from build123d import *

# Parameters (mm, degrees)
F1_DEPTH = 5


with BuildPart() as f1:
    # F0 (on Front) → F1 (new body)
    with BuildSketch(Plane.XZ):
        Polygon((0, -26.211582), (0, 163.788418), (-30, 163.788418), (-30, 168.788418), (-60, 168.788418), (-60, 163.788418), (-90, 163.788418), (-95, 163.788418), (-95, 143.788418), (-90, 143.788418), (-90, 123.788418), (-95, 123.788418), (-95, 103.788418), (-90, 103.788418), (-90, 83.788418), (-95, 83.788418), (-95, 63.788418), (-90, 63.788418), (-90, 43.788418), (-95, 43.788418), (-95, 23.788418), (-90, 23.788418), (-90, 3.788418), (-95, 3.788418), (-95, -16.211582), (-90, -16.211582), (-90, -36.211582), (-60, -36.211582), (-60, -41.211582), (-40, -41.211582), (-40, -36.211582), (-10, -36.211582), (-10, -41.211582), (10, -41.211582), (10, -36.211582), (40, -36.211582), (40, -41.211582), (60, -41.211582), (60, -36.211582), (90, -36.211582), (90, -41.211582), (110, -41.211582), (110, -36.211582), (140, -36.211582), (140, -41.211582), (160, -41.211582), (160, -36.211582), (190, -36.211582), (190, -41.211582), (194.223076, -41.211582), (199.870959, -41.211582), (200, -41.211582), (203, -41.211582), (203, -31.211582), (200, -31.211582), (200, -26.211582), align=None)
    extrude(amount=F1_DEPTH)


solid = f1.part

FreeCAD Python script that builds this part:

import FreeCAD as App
import Part
import Sketcher

V = App.Vector
Q = App.Units.Quantity


def add_polygon(sketch, points):
    """Adds a closed chain of lines whose ends are joined by coincident constraints."""
    first, n = sketch.GeometryCount, len(points)
    for a, b in zip(points, points[1:] + points[:1]):
        sketch.addGeometry(Part.LineSegment(App.Vector(*a, 0), App.Vector(*b, 0)), False)
    for i in range(n):
        sketch.addConstraint(Sketcher.Constraint("Coincident", first + i, 2, first + (i + 1) % n, 1))

doc = App.newDocument("Part")
body = doc.addObject("PartDesign::Body", "Body")

# Sketch on XZ plane
sketch1 = body.newObject("Sketcher::SketchObject", "Sketch")
sketch1.AttachmentSupport = (doc.getObject("XZ_Plane"), [""])
sketch1.MapMode = "FlatFace"
add_polygon(sketch1, [(0, -26.2), (0, 163.8), (-30, 163.8), (-30, 168.8), (-60, 168.8), (-60, 163.8), (-95, 163.8), (-95, 143.8), (-90, 143.8), (-90, 123.8), (-95, 123.8), (-95, 103.8), (-90, 103.8), (-90, 83.8), (-95, 83.8), (-95, 63.8), (-90, 63.8), (-90, 43.8), (-95, 43.8), (-95, 23.8), (-90, 23.8), (-90, 3.8), (-95, 3.8), (-95, -16.2), (-90, -16.2), (-90, -36.2), (-60, -36.2), (-60, -41.2), (-40, -41.2), (-40, -36.2), (-10, -36.2), (-10, -41.2), (10, -41.2), (10, -36.2), (40, -36.2), (40, -41.2), (60, -41.2), (60, -36.2), (90, -36.2), (90, -41.2), (110, -41.2), (110, -36.2), (140, -36.2), (140, -41.2), (160, -41.2), (160, -36.2), (190, -36.2), (190, -41.2), (203, -41.2), (203, -31.2), (200, -31.2), (200, -26.2)])  # lines 0-51
sketch1.addConstraint([
    Sketcher.Constraint("Vertical", 0),
    Sketcher.Constraint("Horizontal", 1),
    Sketcher.Constraint("Vertical", 2),
    Sketcher.Constraint("Horizontal", 3),
    Sketcher.Constraint("Vertical", 4),
    Sketcher.Constraint("Horizontal", 5),
    Sketcher.Constraint("Vertical", 6),
    Sketcher.Constraint("Horizontal", 7),
    Sketcher.Constraint("Vertical", 8),
    Sketcher.Constraint("Horizontal", 9),
    Sketcher.Constraint("Vertical", 10),
    Sketcher.Constraint("Horizontal", 11),
    Sketcher.Constraint("Vertical", 12),
    Sketcher.Constraint("Horizontal", 13),
    Sketcher.Constraint("Vertical", 14),
    Sketcher.Constraint("Horizontal", 15),
    Sketcher.Constraint("Vertical", 16),
    Sketcher.Constraint("Horizontal", 17),
    Sketcher.Constraint("Vertical", 18),
    Sketcher.Constraint("Horizontal", 19),
    Sketcher.Constraint("Vertical", 20),
    Sketcher.Constraint("Horizontal", 21),
    Sketcher.Constraint("Vertical", 22),
    Sketcher.Constraint("Horizontal", 23),
    Sketcher.Constraint("Vertical", 24),
    Sketcher.Constraint("Horizontal", 25),
    Sketcher.Constraint("Vertical", 26),
    Sketcher.Constraint("Horizontal", 27),
    Sketcher.Constraint("Vertical", 28),
    Sketcher.Constraint("Horizontal", 29),
    Sketcher.Constraint("Vertical", 30),
    Sketcher.Constraint("Horizontal", 31),
    Sketcher.Constraint("Vertical", 32),
    Sketcher.Constraint("Horizontal", 33),
    Sketcher.Constraint("Vertical", 34),
    Sketcher.Constraint("Horizontal", 35),
    Sketcher.Constraint("Vertical", 36),
    Sketcher.Constraint("Horizontal", 37),
    Sketcher.Constraint("Vertical", 38),
    Sketcher.Constraint("Horizontal", 39),
    Sketcher.Constraint("Vertical", 40),
    Sketcher.Constraint("Horizontal", 41),
    Sketcher.Constraint("Vertical", 42),
    Sketcher.Constraint("Horizontal", 43),
    Sketcher.Constraint("Vertical", 44),
    Sketcher.Constraint("Horizontal", 45),
    Sketcher.Constraint("Vertical", 46),
    Sketcher.Constraint("Horizontal", 47),
    Sketcher.Constraint("Vertical", 48),
    Sketcher.Constraint("Horizontal", 49),
    Sketcher.Constraint("Vertical", 50),
    Sketcher.Constraint("Horizontal", 51),
    Sketcher.Constraint("Symmetric", 29, 2, 32, 2, -2),
    Sketcher.Constraint("Symmetric", 27, 2, 34, 2, -2),
    Sketcher.Constraint("Symmetric", 25, 2, 36, 2, -2),
    Sketcher.Constraint("PointOnObject", 0, 2, -2),
    Sketcher.Constraint("Horizontal", 1, 2, 4, 2),
    Sketcher.Constraint("Horizontal", 25, 2, 28, 2),
    Sketcher.Constraint("Horizontal", 27, 2, 30, 2),
    Sketcher.Constraint("Horizontal", 35, 2, 38, 2),
    Sketcher.Constraint("Horizontal", 37, 2, 40, 2),
    Sketcher.Constraint("Horizontal", 39, 2, 42, 2),
    Sketcher.Constraint("Horizontal", 41, 2, 44, 2),
    Sketcher.Constraint("Horizontal", 43, 2, 46, 2),
    Sketcher.Constraint("Vertical", 6, 2, 9, 2),
    Sketcher.Constraint("Vertical", 8, 2, 11, 2),
    Sketcher.Constraint("Vertical", 10, 2, 13, 2),
    Sketcher.Constraint("Vertical", 12, 2, 15, 2),
    Sketcher.Constraint("Vertical", 14, 2, 17, 2),
    Sketcher.Constraint("Vertical", 16, 2, 19, 2),
    Sketcher.Constraint("Vertical", 18, 2, 21, 2),
    Sketcher.Constraint("Vertical", 20, 2, 23, 2),
    Sketcher.Constraint("Vertical", 4, 2, 25, 2),
    Sketcher.Constraint("Equal", 1, 3),
    Sketcher.Constraint("Equal", 3, 25),
    Sketcher.Constraint("Equal", 25, 29),
    Sketcher.Constraint("Equal", 27, 31),
    Sketcher.Constraint("Equal", 33, 37),
    Sketcher.Constraint("Equal", 35, 39),
    Sketcher.Constraint("Equal", 37, 41),
    Sketcher.Constraint("Equal", 39, 43),
    Sketcher.Constraint("Equal", 41, 45),
    Sketcher.Constraint("Equal", 23, 2),
    Sketcher.Constraint("Equal", 43, 6),
    Sketcher.Constraint("Equal", 6, 8),
    Sketcher.Constraint("Equal", 8, 10),
    Sketcher.Constraint("Equal", 10, 12),
    Sketcher.Constraint("Equal", 12, 14),
    Sketcher.Constraint("Equal", 14, 16),
    Sketcher.Constraint("Equal", 16, 18),
    Sketcher.Constraint("Equal", 18, 20),
    Sketcher.Constraint("Equal", 20, 22),
    Sketcher.Constraint("Equal", 22, 24),
    Sketcher.Constraint("Equal", 4, 26),
    Sketcher.Constraint("Equal", 46, 50),
    Sketcher.Constraint("DistanceX", 1, 2, 1, 1, Q("30 mm")),
    Sketcher.Constraint("DistanceX", 5, 2, 5, 1, Q("35 mm")),
    Sketcher.Constraint("DistanceX", 47, 1, 47, 2, Q("13 mm")),
    Sketcher.Constraint("DistanceX", 49, 2, 49, 1, Q("3 mm")),
    Sketcher.Constraint("DistanceY", 0, 1, 0, 2, Q("190 mm")),
    Sketcher.Constraint("DistanceY", -1, 1, 0, 2, Q("163.788418 mm")),
])
pad1 = body.newObject("PartDesign::Pad", "Pad")
pad1.Profile = sketch1
pad1.Length = 5

doc.recompute()
